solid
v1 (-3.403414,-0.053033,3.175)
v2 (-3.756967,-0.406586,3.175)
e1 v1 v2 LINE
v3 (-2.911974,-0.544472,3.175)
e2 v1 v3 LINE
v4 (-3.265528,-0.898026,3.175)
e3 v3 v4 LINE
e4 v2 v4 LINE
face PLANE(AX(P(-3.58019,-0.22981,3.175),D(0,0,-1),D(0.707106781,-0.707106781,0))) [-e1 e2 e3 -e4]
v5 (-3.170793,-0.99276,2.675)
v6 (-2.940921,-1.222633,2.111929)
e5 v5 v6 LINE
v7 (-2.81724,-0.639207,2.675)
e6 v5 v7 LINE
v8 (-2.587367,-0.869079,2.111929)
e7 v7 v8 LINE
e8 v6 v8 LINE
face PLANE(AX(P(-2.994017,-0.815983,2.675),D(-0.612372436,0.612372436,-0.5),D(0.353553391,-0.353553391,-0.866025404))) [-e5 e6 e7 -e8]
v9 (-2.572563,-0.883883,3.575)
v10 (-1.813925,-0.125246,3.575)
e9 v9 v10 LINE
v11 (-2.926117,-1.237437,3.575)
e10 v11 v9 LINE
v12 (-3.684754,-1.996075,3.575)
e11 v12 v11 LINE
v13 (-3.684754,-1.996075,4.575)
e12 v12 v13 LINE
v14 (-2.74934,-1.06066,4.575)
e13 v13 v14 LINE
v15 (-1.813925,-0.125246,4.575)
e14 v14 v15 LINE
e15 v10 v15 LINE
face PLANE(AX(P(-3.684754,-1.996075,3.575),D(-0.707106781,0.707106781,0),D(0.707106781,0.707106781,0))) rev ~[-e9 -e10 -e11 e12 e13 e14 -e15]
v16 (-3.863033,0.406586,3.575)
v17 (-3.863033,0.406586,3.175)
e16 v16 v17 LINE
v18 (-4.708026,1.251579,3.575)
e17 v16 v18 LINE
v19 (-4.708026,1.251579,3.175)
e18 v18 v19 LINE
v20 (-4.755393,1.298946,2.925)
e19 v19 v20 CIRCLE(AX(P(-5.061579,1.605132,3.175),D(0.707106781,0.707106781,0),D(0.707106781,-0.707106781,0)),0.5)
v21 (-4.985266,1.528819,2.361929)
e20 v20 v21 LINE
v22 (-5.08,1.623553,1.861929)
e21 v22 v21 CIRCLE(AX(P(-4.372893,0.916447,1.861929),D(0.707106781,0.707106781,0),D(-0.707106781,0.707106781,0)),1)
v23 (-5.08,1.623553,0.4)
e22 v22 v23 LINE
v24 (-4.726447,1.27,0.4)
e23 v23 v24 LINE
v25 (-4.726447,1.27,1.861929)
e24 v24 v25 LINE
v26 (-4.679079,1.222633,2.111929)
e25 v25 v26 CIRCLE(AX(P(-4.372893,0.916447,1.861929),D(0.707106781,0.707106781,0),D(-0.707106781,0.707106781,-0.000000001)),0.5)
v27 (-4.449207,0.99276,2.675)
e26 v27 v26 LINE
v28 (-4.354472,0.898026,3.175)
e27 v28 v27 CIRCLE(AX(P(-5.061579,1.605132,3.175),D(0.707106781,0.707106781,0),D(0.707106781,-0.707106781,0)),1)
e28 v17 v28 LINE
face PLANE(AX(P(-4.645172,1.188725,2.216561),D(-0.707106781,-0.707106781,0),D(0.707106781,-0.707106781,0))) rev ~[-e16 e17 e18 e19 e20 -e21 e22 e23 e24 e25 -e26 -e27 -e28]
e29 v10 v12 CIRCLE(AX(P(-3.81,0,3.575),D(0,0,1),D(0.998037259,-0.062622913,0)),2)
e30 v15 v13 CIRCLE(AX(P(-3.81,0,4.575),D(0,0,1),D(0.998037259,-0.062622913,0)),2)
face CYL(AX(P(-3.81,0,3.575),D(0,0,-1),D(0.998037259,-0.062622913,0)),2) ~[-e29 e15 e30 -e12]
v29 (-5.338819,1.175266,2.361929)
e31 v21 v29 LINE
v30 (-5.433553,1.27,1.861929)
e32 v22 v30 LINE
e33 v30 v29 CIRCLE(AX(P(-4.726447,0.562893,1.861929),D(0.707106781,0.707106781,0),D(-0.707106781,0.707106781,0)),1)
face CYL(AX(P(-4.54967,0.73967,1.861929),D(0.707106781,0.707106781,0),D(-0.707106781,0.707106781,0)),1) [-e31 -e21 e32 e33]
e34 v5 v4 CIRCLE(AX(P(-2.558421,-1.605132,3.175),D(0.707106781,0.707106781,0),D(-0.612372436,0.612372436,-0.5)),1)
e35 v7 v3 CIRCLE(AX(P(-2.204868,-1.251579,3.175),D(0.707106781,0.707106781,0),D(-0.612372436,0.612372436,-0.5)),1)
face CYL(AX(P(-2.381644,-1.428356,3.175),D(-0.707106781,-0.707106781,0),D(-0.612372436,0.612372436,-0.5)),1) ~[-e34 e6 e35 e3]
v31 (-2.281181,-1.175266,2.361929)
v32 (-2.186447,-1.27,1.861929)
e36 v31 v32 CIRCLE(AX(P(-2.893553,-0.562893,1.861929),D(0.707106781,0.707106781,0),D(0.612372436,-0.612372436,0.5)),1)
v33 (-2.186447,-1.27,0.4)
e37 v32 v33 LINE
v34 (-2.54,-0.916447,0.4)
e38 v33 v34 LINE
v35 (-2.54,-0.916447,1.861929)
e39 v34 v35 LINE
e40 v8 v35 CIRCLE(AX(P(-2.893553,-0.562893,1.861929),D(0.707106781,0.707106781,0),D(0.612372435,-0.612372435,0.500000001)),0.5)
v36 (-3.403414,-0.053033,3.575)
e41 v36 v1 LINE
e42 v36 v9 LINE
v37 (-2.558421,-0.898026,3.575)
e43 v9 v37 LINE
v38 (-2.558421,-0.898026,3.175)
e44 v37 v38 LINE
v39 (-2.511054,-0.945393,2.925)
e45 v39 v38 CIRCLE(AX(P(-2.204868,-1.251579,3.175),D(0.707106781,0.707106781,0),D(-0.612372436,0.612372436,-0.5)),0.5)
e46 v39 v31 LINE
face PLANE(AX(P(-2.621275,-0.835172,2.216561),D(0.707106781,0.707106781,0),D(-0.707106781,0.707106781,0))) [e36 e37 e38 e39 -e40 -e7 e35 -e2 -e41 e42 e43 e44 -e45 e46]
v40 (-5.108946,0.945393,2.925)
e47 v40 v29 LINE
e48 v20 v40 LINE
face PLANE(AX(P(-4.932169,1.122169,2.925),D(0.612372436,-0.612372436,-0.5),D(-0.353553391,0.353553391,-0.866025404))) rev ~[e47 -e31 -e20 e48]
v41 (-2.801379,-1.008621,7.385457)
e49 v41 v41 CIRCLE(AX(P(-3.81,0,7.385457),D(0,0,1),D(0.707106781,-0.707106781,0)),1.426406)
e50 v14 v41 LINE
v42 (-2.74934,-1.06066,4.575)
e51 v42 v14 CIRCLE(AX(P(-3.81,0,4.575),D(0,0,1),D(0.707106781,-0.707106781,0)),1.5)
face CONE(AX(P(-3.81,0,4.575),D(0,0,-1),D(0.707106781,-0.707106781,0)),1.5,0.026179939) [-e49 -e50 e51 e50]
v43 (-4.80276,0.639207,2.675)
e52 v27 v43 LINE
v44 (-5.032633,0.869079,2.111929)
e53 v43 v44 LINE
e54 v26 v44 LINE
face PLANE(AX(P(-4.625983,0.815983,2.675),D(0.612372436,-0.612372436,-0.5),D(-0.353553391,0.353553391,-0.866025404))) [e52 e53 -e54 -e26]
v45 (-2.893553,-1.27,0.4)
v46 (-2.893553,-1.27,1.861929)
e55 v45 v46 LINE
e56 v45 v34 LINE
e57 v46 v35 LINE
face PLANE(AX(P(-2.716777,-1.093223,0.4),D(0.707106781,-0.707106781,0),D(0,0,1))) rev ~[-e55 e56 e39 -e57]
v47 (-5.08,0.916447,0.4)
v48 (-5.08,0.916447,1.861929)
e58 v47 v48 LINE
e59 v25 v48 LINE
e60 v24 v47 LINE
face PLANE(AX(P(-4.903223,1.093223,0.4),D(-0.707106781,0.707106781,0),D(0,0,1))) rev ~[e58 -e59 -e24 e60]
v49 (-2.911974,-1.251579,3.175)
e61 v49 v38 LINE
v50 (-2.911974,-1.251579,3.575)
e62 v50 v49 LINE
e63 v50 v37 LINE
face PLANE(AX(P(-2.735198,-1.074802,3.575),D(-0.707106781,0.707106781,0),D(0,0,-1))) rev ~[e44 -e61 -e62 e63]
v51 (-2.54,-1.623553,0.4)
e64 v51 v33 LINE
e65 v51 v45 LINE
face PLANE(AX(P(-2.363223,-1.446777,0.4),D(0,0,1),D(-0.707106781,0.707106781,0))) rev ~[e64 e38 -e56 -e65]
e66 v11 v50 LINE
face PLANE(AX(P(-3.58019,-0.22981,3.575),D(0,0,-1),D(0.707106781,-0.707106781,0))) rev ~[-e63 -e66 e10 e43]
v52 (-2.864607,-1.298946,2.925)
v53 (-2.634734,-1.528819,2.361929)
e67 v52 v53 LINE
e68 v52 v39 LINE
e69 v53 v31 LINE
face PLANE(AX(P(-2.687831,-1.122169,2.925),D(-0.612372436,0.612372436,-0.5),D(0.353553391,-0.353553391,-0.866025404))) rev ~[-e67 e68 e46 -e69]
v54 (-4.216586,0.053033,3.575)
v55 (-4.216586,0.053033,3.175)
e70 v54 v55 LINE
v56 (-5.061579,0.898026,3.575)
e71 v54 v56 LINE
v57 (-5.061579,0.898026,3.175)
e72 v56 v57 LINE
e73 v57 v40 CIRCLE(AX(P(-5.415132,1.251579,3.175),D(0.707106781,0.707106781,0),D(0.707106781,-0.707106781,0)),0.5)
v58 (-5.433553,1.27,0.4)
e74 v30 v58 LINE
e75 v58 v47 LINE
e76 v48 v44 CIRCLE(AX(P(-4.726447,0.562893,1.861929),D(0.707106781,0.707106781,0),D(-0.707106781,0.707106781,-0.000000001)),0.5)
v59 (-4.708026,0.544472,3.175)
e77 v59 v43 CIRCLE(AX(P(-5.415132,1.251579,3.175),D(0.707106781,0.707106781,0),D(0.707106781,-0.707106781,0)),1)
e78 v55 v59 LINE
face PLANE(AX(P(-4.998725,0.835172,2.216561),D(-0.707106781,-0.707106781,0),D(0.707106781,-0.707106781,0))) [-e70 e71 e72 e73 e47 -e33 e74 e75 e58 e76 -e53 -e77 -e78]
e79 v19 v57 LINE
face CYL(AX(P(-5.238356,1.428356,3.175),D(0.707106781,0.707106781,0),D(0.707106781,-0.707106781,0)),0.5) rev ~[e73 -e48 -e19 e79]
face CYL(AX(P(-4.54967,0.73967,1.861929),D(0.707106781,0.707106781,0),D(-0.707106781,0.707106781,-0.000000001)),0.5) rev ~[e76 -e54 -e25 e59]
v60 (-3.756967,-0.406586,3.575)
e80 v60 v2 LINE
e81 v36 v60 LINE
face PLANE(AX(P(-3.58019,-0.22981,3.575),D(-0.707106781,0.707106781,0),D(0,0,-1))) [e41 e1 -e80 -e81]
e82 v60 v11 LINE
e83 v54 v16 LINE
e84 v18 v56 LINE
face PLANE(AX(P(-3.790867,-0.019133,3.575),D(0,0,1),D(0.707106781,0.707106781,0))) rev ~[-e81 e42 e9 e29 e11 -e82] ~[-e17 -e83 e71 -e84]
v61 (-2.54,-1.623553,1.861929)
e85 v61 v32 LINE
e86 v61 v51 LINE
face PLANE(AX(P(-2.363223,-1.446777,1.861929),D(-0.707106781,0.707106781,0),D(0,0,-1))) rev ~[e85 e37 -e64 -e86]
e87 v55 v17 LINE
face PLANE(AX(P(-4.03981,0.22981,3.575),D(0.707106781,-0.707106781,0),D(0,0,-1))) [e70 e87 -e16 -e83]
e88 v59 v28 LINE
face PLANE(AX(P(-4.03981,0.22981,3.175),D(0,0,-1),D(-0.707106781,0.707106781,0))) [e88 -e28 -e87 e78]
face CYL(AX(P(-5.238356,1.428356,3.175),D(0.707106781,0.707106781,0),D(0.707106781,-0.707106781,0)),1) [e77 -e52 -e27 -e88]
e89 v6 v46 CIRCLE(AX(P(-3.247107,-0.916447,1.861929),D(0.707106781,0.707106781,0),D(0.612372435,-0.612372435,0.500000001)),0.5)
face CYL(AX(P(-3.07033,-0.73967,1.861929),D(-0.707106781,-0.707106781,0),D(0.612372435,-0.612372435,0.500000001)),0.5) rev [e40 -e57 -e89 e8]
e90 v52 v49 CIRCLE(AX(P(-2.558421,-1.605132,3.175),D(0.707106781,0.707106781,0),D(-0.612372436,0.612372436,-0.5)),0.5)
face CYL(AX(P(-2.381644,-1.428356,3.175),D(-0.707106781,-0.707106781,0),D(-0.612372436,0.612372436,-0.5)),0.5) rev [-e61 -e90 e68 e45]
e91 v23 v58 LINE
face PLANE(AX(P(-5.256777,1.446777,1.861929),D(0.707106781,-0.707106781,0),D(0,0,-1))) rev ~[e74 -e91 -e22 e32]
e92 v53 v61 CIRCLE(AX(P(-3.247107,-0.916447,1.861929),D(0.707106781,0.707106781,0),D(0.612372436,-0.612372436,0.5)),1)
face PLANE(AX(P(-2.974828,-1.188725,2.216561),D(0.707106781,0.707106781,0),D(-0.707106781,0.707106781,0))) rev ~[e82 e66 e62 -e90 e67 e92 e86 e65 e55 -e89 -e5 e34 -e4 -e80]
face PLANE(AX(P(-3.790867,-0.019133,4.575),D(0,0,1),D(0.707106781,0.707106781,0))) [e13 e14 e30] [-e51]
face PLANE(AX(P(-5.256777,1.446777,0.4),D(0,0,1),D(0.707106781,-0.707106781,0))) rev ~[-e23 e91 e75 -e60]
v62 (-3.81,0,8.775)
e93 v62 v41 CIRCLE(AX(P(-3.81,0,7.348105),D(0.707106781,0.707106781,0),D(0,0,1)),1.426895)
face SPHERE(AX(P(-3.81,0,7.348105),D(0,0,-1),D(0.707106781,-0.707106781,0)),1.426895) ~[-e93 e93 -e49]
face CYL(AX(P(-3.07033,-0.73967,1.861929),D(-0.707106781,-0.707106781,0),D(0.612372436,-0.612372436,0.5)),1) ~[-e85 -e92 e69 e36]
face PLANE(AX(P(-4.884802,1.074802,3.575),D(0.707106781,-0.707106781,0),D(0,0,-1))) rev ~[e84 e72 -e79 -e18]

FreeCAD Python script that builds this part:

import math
import FreeCAD as App
import Part
import Sketcher
Q = App.Units.Quantity

doc = App.newDocument("Part")
body = doc.addObject("PartDesign::Body", "Body")

# Sketch on XY plane
sketch1 = body.newObject("Sketcher::SketchObject", "Sketch")
sketch1.AttachmentSupport = (doc.getObject("XY_Plane"), [""])
sketch1.MapMode = "FlatFace"
sketch1.addGeometry([
    Part.ArcOfCircle(Part.Circle(App.Vector(0, 0, 0), App.Vector(0, 0, 1), 2), math.radians(-48.590378), math.radians(228.590378)),
    Part.LineSegment(App.Vector(-1.322876, -1.5, 0), App.Vector(1.322876, -1.5, 0)),
], False)
sketch1.addConstraint([
    Sketcher.Constraint("Coincident", 0, 1, 1, 2),
    Sketcher.Constraint("Coincident", 1, 1, 0, 2),
    Sketcher.Constraint("Horizontal", 1),
    Sketcher.Constraint("Coincident", 0, 3, -1, 1),
    Sketcher.Constraint("Radius", 0, Q("2 mm")),
    Sketcher.Constraint("DistanceY", 0, 1, -1, 1, Q("1.5 mm")),
])
pad1 = body.newObject("PartDesign::Pad", "Pad")
pad1.Profile = sketch1
pad1.Length = 1

# Sketch on YZ plane
sketch2 = body.newObject("Sketcher::SketchObject", "Sketch001")
sketch2.AttachmentSupport = (doc.getObject("YZ_Plane"), [""])
sketch2.MapMode = "FlatFace"
sketch2.addGeometry([
    Part.LineSegment(App.Vector(0, 1, 0), App.Vector(0, 5.2, 0)),
    Part.ArcOfCircle(Part.Circle(App.Vector(0, 3.773105, 0), App.Vector(0, 0, 1), 1.426895), math.radians(90), math.radians(178.5)),
    Part.LineSegment(App.Vector(-1.426406, 3.810457, 0), App.Vector(-1.5, 1, 0)),
    Part.LineSegment(App.Vector(-1.5, 1, 0), App.Vector(0, 1, 0)),
], False)
sketch2.addConstraint([
    Sketcher.Constraint("Coincident", 0, 2, 1, 1),
    Sketcher.Constraint("Tangent", 1, 2, 2, 1),
    Sketcher.Constraint("Coincident", 2, 2, 3, 1),
    Sketcher.Constraint("Coincident", 3, 2, 0, 1),
    Sketcher.Constraint("Vertical", 0),
    Sketcher.Constraint("Horizontal", 3),
    Sketcher.Constraint("PointOnObject", 1, 3, -2),
    Sketcher.Constraint("PointOnObject", 0, 2, -2),
    Sketcher.Constraint("DistanceX", 3, 1, 3, 2, Q("1.5 mm")),
    Sketcher.Constraint("DistanceY", 0, 1, 0, 2, Q("4.2 mm")),
    Sketcher.Constraint("DistanceY", -1, 1, 2, 2, Q("1 mm")),
    Sketcher.Constraint("Angle", 2, Q("-91.5 deg")),
])
revolution = body.newObject("PartDesign::Revolution", "Revolution")
revolution.Profile = sketch2
revolution.ReferenceAxis = (sketch2, ["V_Axis"])
revolution.Angle = 360

# Sketch on YZ plane
sketch3 = body.newObject("Sketcher::SketchObject", "Sketch002")
sketch3.AttachmentSupport = (doc.getObject("YZ_Plane"), [""])
sketch3.MapMode = "FlatFace"
sketch3.addGeometry([
    Part.LineSegment(App.Vector(-0.325, 0, 0), App.Vector(-1.52, 0, 0)),  # 0
    Part.LineSegment(App.Vector(-1.52, 0, 0), App.Vector(-1.52, -0.4, 0)),  # 1
    Part.ArcOfCircle(Part.Circle(App.Vector(-2.02, -0.4, 0), App.Vector(0, 0, 1), 0.5), math.radians(-30), math.radians(0)),  # 2
    Part.LineSegment(App.Vector(-1.586987, -0.65, 0), App.Vector(-1.912077, -1.213071, 0)),  # 3
    Part.ArcOfCircle(Part.Circle(App.Vector(-1.046051, -1.713071, 0), App.Vector(0, 0, 1), 1), math.radians(150), math.radians(180)),  # 4
    Part.LineSegment(App.Vector(-2.046051, -1.713071, 0), App.Vector(-2.046051, -3.175, 0)),  # 5
    Part.LineSegment(App.Vector(-2.046051, -3.175, 0), App.Vector(-1.546051, -3.175, 0)),  # 6
    Part.LineSegment(App.Vector(-1.546051, -3.175, 0), App.Vector(-1.546051, -1.713071, 0)),  # 7
    Part.ArcOfCircle(Part.Circle(App.Vector(-1.046051, -1.713071, 0), App.Vector(0, 0, 1), 0.5), math.radians(150), math.radians(180)),  # 8
    Part.LineSegment(App.Vector(-1.479064, -1.463071, 0), App.Vector(-1.153975, -0.9, 0)),  # 9
    Part.ArcOfCircle(Part.Circle(App.Vector(-2.02, -0.4, 0), App.Vector(0, 0, 1), 1), math.radians(-30), math.radians(0)),  # 10
    Part.LineSegment(App.Vector(-1.02, -0.4, 0), App.Vector(-0.325, -0.4, 0)),  # 11
    Part.LineSegment(App.Vector(-0.325, -0.4, 0), App.Vector(-0.325, 0, 0)),  # 12
    Part.LineSegment(App.Vector(1.52, 0, 0), App.Vector(0.325, 0, 0)),  # 13
    Part.LineSegment(App.Vector(0.325, 0, 0), App.Vector(0.325, -0.4, 0)),  # 14
    Part.LineSegment(App.Vector(0.325, -0.4, 0), App.Vector(1.02, -0.4, 0)),  # 15
    Part.ArcOfCircle(Part.Circle(App.Vector(2.02, -0.4, 0), App.Vector(0, 0, 1), 1), math.radians(180), math.radians(210)),  # 16
    Part.LineSegment(App.Vector(1.153975, -0.9, 0), App.Vector(1.479064, -1.463071, 0)),  # 17
    Part.ArcOfCircle(Part.Circle(App.Vector(1.046051, -1.713071, 0), App.Vector(0, 0, 1), 0.5), math.radians(0), math.radians(30)),  # 18
    Part.LineSegment(App.Vector(1.546051, -1.713071, 0), App.Vector(1.546051, -3.175, 0)),  # 19
    Part.LineSegment(App.Vector(1.546051, -3.175, 0), App.Vector(2.046051, -3.175, 0)),  # 20
    Part.LineSegment(App.Vector(2.046051, -3.175, 0), App.Vector(2.046051, -1.713071, 0)),  # 21
    Part.ArcOfCircle(Part.Circle(App.Vector(1.046051, -1.713071, 0), App.Vector(0, 0, 1), 1), math.radians(0), math.radians(30)),  # 22
    Part.LineSegment(App.Vector(1.912077, -1.213071, 0), App.Vector(1.586987, -0.65, 0)),  # 23
    Part.ArcOfCircle(Part.Circle(App.Vector(2.02, -0.4, 0), App.Vector(0, 0, 1), 0.5), math.radians(180), math.radians(210)),  # 24
    Part.LineSegment(App.Vector(1.52, -0.4, 0), App.Vector(1.52, 0, 0)),  # 25
], False)
sketch3.addConstraint([
    Sketcher.Constraint("Coincident", 0, 2, 1, 1),
    Sketcher.Constraint("Tangent", 1, 2, 2, 2),
    Sketcher.Constraint("Tangent", 2, 1, 3, 1),
    Sketcher.Constraint("Tangent", 3, 2, 4, 1),
    Sketcher.Constraint("Tangent", 4, 2, 5, 1),
    Sketcher.Constraint("Coincident", 5, 2, 6, 1),
    Sketcher.Constraint("Coincident", 6, 2, 7, 1),
    Sketcher.Constraint("Tangent", 7, 2, 8, 2),
    Sketcher.Constraint("Tangent", 8, 1, 9, 1),
    Sketcher.Constraint("Tangent", 9, 2, 10, 1),
    Sketcher.Constraint("Coincident", 10, 2, 11, 1),
    Sketcher.Constraint("Coincident", 11, 2, 12, 1),
    Sketcher.Constraint("Coincident", 12, 2, 0, 1),
    Sketcher.Constraint("Coincident", 13, 2, 14, 1),
    Sketcher.Constraint("Coincident", 14, 2, 15, 1),
    Sketcher.Constraint("Coincident", 15, 2, 16, 1),
    Sketcher.Constraint("Tangent", 16, 2, 17, 1),
    Sketcher.Constraint("Tangent", 17, 2, 18, 2),
    Sketcher.Constraint("Tangent", 18, 1, 19, 1),
    Sketcher.Constraint("Coincident", 19, 2, 20, 1),
    Sketcher.Constraint("Coincident", 20, 2, 21, 1),
    Sketcher.Constraint("Tangent", 21, 2, 22, 1),
    Sketcher.Constraint("Tangent", 22, 2, 23, 1),
    Sketcher.Constraint("Tangent", 23, 2, 24, 2),
    Sketcher.Constraint("Tangent", 24, 1, 25, 1),
    Sketcher.Constraint("Coincident", 25, 2, 13, 1),
    Sketcher.Constraint("Horizontal", 0),
    Sketcher.Constraint("Vertical", 1),
    Sketcher.Constraint("Vertical", 5),
    Sketcher.Constraint("Horizontal", 6),
    Sketcher.Constraint("Vertical", 7),
    Sketcher.Constraint("Horizontal", 11),
    Sketcher.Constraint("Vertical", 12),
    Sketcher.Constraint("Horizontal", 13),
    Sketcher.Constraint("Vertical", 14),
    Sketcher.Constraint("Horizontal", 15),
    Sketcher.Constraint("Vertical", 19),
    Sketcher.Constraint("Horizontal", 20),
    Sketcher.Constraint("Vertical", 21),
    Sketcher.Constraint("Vertical", 25),
    Sketcher.Constraint("Coincident", 8, 3, 4, 3),
    Sketcher.Constraint("Coincident", 10, 3, 2, 3),
    Sketcher.Constraint("Coincident", 22, 3, 18, 3),
    Sketcher.Constraint("Coincident", 24, 3, 16, 3),
    Sketcher.Constraint("Equal", 2, 8),
    Sketcher.Constraint("Equal", 4, 10),
    Sketcher.Constraint("Equal", 10, 16),
    Sketcher.Constraint("Equal", 8, 18),
    Sketcher.Constraint("Equal", 16, 22),
    Sketcher.Constraint("Equal", 18, 24),
    Sketcher.Constraint("Symmetric", 12, 2, 13, 2, -1, 1),
    Sketcher.Constraint("Symmetric", 2, 3, 16, 3, -2),
    Sketcher.Constraint("Symmetric", 4, 3, 18, 3, -2),
    Sketcher.Constraint("PointOnObject", 0, 2, -1),
    Sketcher.Constraint("Horizontal", 1, 2, 10, 2),
    Sketcher.Constraint("Horizontal", 11, 2, 14, 2),
    Sketcher.Constraint("Horizontal", 6, 2, 19, 2),
    Sketcher.Constraint("Radius", 4, Q("1 mm")),
    Sketcher.Constraint("Radius", 2, Q("0.5 mm")),
    Sketcher.Constraint("Angle", 3, Q("-120 deg")),
    Sketcher.Constraint("DistanceY", 1, 2, 1, 1, Q("0.4 mm")),
    Sketcher.Constraint("DistanceX", 0, 2, 0, 1, Q("1.195 mm")),
    Sketcher.Constraint("DistanceX", 2, 3, -1, 1, Q("2.02 mm")),
    Sketcher.Constraint("DistanceY", 5, 2, -1, 1, Q("3.175 mm")),
    Sketcher.Constraint("DistanceY", 5, 2, 5, 1, Q("1.461929 mm")),
])
pad2 = body.newObject("PartDesign::Pad", "Pad001")
pad2.Profile = sketch3
pad2.Length = 0.5
pad2.Midplane = True
body2 = doc.addObject("PartDesign::Body", "Body001")
doc.recompute()

body.Placement = App.Placement(App.Vector(-3.81, 0, 3.575), App.Rotation(App.Vector(0, 0, 1), 45))
boolean = body2.newObject("PartDesign::Boolean", "Boolean")
boolean.Type = "Fuse"
boolean.addObjects([body])

doc.recompute()
